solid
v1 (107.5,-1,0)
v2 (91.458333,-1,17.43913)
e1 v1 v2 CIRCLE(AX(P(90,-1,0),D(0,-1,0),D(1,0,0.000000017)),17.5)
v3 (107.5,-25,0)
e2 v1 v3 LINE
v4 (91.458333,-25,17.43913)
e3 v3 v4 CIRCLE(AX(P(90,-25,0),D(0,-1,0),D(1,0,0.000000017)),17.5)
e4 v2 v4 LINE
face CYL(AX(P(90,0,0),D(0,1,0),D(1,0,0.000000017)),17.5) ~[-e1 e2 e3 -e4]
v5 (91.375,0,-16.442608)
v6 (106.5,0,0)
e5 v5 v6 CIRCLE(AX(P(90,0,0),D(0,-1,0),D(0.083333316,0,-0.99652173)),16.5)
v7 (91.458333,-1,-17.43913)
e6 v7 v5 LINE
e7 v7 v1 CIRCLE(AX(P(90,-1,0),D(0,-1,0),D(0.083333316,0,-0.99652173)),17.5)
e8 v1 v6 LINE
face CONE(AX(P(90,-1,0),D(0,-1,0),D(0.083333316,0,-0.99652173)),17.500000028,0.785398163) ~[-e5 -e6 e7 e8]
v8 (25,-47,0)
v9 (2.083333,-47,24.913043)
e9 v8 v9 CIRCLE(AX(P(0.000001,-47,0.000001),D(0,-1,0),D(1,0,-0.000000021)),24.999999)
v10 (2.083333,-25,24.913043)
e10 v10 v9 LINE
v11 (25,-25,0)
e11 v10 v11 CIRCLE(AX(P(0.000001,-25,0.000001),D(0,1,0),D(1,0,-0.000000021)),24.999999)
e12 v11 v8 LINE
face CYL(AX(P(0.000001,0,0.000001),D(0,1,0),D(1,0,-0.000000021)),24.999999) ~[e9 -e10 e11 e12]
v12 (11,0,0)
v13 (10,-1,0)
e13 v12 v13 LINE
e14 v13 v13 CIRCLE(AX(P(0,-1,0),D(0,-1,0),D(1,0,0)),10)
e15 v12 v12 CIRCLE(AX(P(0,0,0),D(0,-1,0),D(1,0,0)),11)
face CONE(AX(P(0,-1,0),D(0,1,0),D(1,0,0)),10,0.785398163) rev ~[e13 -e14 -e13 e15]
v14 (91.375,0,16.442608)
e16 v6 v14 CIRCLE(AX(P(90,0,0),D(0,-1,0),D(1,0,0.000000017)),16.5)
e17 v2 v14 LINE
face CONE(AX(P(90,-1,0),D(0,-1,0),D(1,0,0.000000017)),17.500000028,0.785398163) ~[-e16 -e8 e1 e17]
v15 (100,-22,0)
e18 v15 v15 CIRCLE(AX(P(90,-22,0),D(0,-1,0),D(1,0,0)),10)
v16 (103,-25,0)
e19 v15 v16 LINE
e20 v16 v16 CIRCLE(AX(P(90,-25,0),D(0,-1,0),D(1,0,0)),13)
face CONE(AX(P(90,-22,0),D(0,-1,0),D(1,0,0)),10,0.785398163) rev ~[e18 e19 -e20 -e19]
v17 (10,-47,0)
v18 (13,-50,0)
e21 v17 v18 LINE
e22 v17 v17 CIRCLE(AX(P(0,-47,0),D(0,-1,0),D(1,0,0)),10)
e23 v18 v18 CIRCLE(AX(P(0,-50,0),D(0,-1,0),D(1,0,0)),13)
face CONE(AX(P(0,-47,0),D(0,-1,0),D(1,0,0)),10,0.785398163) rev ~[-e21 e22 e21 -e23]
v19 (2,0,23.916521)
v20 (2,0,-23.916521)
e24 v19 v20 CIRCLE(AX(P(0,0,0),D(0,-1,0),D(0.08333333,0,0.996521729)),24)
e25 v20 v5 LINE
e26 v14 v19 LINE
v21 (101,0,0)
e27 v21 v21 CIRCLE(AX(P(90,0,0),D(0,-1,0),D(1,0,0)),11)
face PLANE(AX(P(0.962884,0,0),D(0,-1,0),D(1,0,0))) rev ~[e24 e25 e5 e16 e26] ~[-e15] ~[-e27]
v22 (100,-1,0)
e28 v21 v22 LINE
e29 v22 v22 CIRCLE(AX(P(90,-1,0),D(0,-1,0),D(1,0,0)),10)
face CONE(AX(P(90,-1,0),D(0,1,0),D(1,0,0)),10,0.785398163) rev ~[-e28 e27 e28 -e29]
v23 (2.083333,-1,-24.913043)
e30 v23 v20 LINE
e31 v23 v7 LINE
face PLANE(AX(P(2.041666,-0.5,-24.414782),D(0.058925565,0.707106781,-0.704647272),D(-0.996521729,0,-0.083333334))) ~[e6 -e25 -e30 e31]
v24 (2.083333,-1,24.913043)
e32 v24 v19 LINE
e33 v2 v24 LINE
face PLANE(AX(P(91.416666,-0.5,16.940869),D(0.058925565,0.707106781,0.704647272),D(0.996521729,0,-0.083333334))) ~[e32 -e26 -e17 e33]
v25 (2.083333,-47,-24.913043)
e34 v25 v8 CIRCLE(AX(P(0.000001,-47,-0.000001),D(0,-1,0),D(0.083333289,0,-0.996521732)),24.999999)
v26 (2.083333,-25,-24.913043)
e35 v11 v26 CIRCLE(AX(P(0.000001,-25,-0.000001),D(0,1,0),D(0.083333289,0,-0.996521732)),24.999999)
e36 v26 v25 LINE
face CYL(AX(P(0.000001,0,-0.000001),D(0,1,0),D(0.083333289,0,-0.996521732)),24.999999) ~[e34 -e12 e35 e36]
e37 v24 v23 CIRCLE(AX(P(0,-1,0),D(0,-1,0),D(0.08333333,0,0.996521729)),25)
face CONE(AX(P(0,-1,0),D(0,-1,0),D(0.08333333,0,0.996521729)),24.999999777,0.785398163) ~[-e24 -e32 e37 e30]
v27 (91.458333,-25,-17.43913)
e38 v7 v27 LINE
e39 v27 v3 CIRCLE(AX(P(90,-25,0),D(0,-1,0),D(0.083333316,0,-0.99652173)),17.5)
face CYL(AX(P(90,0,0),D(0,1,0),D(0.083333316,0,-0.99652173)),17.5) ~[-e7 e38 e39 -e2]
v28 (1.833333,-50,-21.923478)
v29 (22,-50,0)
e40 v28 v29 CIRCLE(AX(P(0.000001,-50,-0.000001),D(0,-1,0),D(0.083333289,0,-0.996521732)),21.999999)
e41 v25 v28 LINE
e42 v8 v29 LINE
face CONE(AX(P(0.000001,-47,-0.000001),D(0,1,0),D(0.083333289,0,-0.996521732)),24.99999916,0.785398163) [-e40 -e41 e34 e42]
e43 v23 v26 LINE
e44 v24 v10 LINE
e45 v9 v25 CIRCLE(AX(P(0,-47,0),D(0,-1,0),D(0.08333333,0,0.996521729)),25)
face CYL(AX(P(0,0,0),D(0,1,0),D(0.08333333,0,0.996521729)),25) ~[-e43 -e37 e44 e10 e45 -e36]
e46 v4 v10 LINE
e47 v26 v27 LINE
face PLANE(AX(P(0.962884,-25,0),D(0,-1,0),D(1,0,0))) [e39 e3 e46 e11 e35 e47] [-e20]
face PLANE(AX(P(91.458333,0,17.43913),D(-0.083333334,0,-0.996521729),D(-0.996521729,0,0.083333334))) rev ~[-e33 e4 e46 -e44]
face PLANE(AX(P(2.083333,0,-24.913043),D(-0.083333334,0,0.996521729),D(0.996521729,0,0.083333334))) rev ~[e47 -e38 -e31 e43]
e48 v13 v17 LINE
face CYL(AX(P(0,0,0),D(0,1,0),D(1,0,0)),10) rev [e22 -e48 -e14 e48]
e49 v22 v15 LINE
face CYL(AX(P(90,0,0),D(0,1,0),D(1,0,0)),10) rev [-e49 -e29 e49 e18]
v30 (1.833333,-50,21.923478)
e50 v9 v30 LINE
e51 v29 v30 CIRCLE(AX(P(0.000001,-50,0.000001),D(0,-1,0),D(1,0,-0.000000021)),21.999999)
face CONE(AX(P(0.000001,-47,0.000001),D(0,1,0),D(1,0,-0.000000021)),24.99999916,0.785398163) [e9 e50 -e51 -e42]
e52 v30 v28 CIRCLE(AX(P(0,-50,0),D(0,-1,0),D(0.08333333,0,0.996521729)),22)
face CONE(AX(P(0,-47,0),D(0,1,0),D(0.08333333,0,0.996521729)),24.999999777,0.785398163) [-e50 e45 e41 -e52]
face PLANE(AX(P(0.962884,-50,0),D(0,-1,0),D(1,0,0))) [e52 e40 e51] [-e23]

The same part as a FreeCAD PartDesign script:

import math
import FreeCAD as App
import Part
import Sketcher

V = App.Vector


def edges_at(feature, points):
    """Names of the edges that pass closest to the given points."""
    edges = feature.Shape.Edges
    near = lambda p: min(range(len(edges)), key=lambda i: edges[i].distToShape(Part.Vertex(*p))[0])
    return sorted({f"Edge{near(p) + 1}" for p in points})

doc = App.newDocument("Part")
body = doc.addObject("PartDesign::Body", "Body")

# Sketch on XZ plane
sketch1 = body.newObject("Sketcher::SketchObject", "Sketch")
sketch1.AttachmentSupport = (doc.getObject("XZ_Plane"), [""])
sketch1.MapMode = "FlatFace"
sketch1.addGeometry([
    Part.ArcOfCircle(Part.Circle(V(0, 0, 0), V(0, 0, 1), 25), math.radians(85.219808), math.radians(274.780192)),  # 0
    Part.LineSegment(V(2.083333, -24.913043, 0), V(91.458333, -17.43913, 0)),  # 1
    Part.ArcOfCircle(Part.Circle(V(90, 0, 0), V(0, 0, 1), 17.5), math.radians(-85.219809), math.radians(-0.000001)),  # 2
    Part.ArcOfCircle(Part.Circle(V(90, 0, 0), V(0, 0, 1), 17.5), math.radians(0.000001), math.radians(85.219809)),  # 3
    Part.LineSegment(V(91.458333, 17.43913, 0), V(2.083333, 24.913043, 0)),  # 4
    Part.Circle(V(0, 0, 0), V(0, 0, 1), 10),  # 5
    Part.Circle(V(90, 0, 0), V(0, 0, 1), 10),  # 6
], False)
sketch1.addConstraint([
    Sketcher.Constraint("Tangent", 0, 2, 1, 1),
    Sketcher.Constraint("Tangent", 1, 2, 2, 1),
    Sketcher.Constraint("Tangent", 2, 2, 3, 1),
    Sketcher.Constraint("Tangent", 3, 2, 4, 1),
    Sketcher.Constraint("Tangent", 4, 2, 0, 1),
    Sketcher.Constraint("Coincident", 0, 3, -1, 1),
    Sketcher.Constraint("Coincident", 5, 3, -1, 1),
    Sketcher.Constraint("Coincident", 6, 3, 2, 3),
    Sketcher.Constraint("Equal", 2, 3),
    Sketcher.Constraint("Equal", 5, 6),
    Sketcher.Constraint("PointOnObject", 2, 3, -1),
    Sketcher.Constraint("PointOnObject", 2, 2, -1),
    Sketcher.Constraint("Diameter", 5, 20.0),
    Sketcher.Constraint("Radius", 0, 25.0),
    Sketcher.Constraint("Radius", 2, 17.5),
    Sketcher.Constraint("DistanceX", -1, 1, 2, 3, 90.0),
])
pad1 = body.newObject("PartDesign::Pad", "Pad")
pad1.Profile = sketch1
pad1.Length = 25

# Sketch on XZ plane
sketch2 = body.newObject("Sketcher::SketchObject", "Sketch001")
sketch2.AttachmentSupport = (doc.getObject("XZ_Plane"), [""])
sketch2.MapMode = "FlatFace"
sketch2.addGeometry([
    Part.ArcOfCircle(Part.Circle(V(0.000001, -0.000001, 0), V(0, 0, 1), 24.999999), math.radians(-85.219811), math.radians(0.000001)),
    Part.ArcOfCircle(Part.Circle(V(0.000001, 0.000001, 0), V(0, 0, 1), 24.999999), math.radians(-0.000001), math.radians(85.219811)),
    Part.ArcOfCircle(Part.Circle(V(0, 0, 0), V(0, 0, 1), 25), math.radians(85.219808), math.radians(274.780192)),
    Part.Circle(V(0, 0, 0), V(0, 0, 1), 10),
], False)
sketch2.addConstraint([
    Sketcher.Constraint("Tangent", 0, 2, 1, 1),
    Sketcher.Constraint("Tangent", 1, 2, 2, 1),
    Sketcher.Constraint("Tangent", 2, 2, 0, 1),
    Sketcher.Constraint("Coincident", 0, 3, -1, 1),
    Sketcher.Constraint("Coincident", 3, 3, -1, 1),
    Sketcher.Constraint("PointOnObject", 0, 2, -1),
    Sketcher.Constraint("Vertical", 1, 2, 2, 2),
    Sketcher.Constraint("Diameter", 3, 20.0),
    Sketcher.Constraint("Radius", 0, 24.999999),
    Sketcher.Constraint("DistanceX", -1, 1, 1, 2, 2.083333),
])
pad2 = body.newObject("PartDesign::Pad", "Pad001")
pad2.Profile = sketch2
pad2.Length = 50
doc.recompute()

chamfer = body.newObject("PartDesign::Chamfer", "Chamfer")
chamfer.Base = (pad2, edges_at(pad2, [(-25, -50, 0), (-10, -50, 0), (80, -25, 0)]))
chamfer.Size = 3
doc.recompute()

chamfer2 = body.newObject("PartDesign::Chamfer", "Chamfer001")
chamfer2.Base = (chamfer, edges_at(chamfer, [
    (-25, 0, 0),
    (46.771, 0, -21.176),
    (102.88, 0, -11.848),
    (46.771, 0, 21.176),
    (-10, 0, 0),
    (80, 0, 0),
]))
chamfer2.Size = 1

doc.recompute()
